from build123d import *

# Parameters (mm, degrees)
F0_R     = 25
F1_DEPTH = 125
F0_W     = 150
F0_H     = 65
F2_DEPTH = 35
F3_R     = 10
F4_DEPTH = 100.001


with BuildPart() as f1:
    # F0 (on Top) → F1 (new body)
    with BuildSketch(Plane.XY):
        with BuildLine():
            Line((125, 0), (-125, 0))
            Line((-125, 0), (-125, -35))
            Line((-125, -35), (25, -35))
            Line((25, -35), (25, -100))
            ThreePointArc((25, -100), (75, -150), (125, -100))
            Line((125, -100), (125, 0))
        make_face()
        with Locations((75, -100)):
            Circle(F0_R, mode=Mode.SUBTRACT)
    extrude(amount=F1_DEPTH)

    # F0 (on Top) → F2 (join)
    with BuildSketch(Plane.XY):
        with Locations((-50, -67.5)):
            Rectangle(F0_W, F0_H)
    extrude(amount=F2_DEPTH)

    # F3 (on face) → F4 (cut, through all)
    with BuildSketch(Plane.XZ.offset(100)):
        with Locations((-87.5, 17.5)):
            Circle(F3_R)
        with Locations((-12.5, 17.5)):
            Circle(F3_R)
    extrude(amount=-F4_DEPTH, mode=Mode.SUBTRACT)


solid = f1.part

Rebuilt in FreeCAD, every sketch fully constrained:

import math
import FreeCAD as App
import Part
import Sketcher
from FreeCAD import Vector


def add_polygon(sketch, points):
    """Adds a closed chain of lines whose ends are joined by coincident constraints."""
    first, n = sketch.GeometryCount, len(points)
    for a, b in zip(points, points[1:] + points[:1]):
        sketch.addGeometry(Part.LineSegment(App.Vector(*a, 0), App.Vector(*b, 0)), False)
    for i in range(n):
        sketch.addConstraint(Sketcher.Constraint("Coincident", first + i, 2, first + (i + 1) % n, 1))

doc = App.newDocument("Part")
body = doc.addObject("PartDesign::Body", "Body")

sketch1 = body.newObject("Sketcher::SketchObject", "Sketch")
sketch1.AttachmentSupport = (doc.getObject("XY_Plane"), [""])
sketch1.MapMode = "FlatFace"
sketch1.addGeometry(Part.LineSegment(Vector(125, 0, 0), Vector(-125, 0, 0)), False)
sketch1.addGeometry(Part.LineSegment(Vector(-125, 0, 0), Vector(-125, -35, 0)), False)
sketch1.addGeometry(Part.LineSegment(Vector(-125, -35, 0), Vector(25, -35, 0)), False)
sketch1.addGeometry(Part.LineSegment(Vector(25, -35, 0), Vector(25, -100, 0)), False)
sketch1.addGeometry(Part.ArcOfCircle(Part.Circle(Vector(75, -100, 0), Vector(0, 0, 1), 50), math.radians(180), math.radians(360)), False)
sketch1.addGeometry(Part.LineSegment(Vector(125, -100, 0), Vector(125, 0, 0)), False)
sketch1.addGeometry(Part.Circle(Vector(75, -100, 0), Vector(0, 0, 1), 25), False)
sketch1.addConstraint(Sketcher.Constraint("Coincident", 0, 2, 1, 1))
sketch1.addConstraint(Sketcher.Constraint("Coincident", 1, 2, 2, 1))
sketch1.addConstraint(Sketcher.Constraint("Coincident", 2, 2, 3, 1))
sketch1.addConstraint(Sketcher.Constraint("Tangent", 3, 2, 4, 1))
sketch1.addConstraint(Sketcher.Constraint("Tangent", 4, 2, 5, 1))
sketch1.addConstraint(Sketcher.Constraint("Coincident", 5, 2, 0, 1))
sketch1.addConstraint(Sketcher.Constraint("Horizontal", 0))
sketch1.addConstraint(Sketcher.Constraint("Vertical", 1))
sketch1.addConstraint(Sketcher.Constraint("Horizontal", 2))
sketch1.addConstraint(Sketcher.Constraint("Vertical", 3))
sketch1.addConstraint(Sketcher.Constraint("Vertical", 5))
sketch1.addConstraint(Sketcher.Constraint("Coincident", 6, 3, 4, 3))
sketch1.addConstraint(Sketcher.Constraint("Symmetric", 0, 2, 5, 2, -1, 1))
sketch1.addConstraint(Sketcher.Constraint("Diameter", 6, 50.0))
sketch1.addConstraint(Sketcher.Constraint("Radius", 4, 50.0))
sketch1.addConstraint(Sketcher.Constraint("DistanceX", 0, 2, 0, 1, 250.0))
sketch1.addConstraint(Sketcher.Constraint("DistanceY", 1, 2, 1, 1, 35.0))
sketch1.addConstraint(Sketcher.Constraint("DistanceY", 3, 2, 3, 1, 65.0))
pad1 = body.newObject("PartDesign::Pad", "Pad")
pad1.Profile = sketch1
pad1.Length = 125

sketch2 = body.newObject("Sketcher::SketchObject", "Sketch001")
sketch2.AttachmentSupport = (doc.getObject("XY_Plane"), [""])
sketch2.MapMode = "FlatFace"
add_polygon(sketch2, [(-125, -35), (-125, -100), (25, -100), (25, -35)])
sketch2.addConstraint(Sketcher.Constraint("Vertical", 0))
sketch2.addConstraint(Sketcher.Constraint("Horizontal", 1))
sketch2.addConstraint(Sketcher.Constraint("Vertical", 2))
sketch2.addConstraint(Sketcher.Constraint("Horizontal", 3))
sketch2.addConstraint(Sketcher.Constraint("DistanceX", 1, 1, 1, 2, 150.0))
sketch2.addConstraint(Sketcher.Constraint("DistanceY", 0, 2, 0, 1, 65.0))
sketch2.addConstraint(Sketcher.Constraint("DistanceX", 0, 2, -1, 1, 125.0))
sketch2.addConstraint(Sketcher.Constraint("DistanceY", 0, 2, -1, 1, 100.0))
pad2 = body.newObject("PartDesign::Pad", "Pad001")
pad2.Profile = sketch2
pad2.Length = 35

sketch3 = body.newObject("Sketcher::SketchObject", "Sketch002")
sketch3.AttachmentSupport = (doc.getObject("XZ_Plane"), [""])
sketch3.MapMode = "FlatFace"
sketch3.AttachmentOffset = App.Placement(Vector(0, 0, 100), App.Rotation())
sketch3.addGeometry(Part.Circle(Vector(-87.5, 17.5, 0), Vector(0, 0, 1), 10), False)
sketch3.addGeometry(Part.Circle(Vector(-12.5, 17.5, 0), Vector(0, 0, 1), 10), False)
sketch3.addConstraint(Sketcher.Constraint("Equal", 0, 1))
sketch3.addConstraint(Sketcher.Constraint("Horizontal", 0, 3, 1, 3))
sketch3.addConstraint(Sketcher.Constraint("Diameter", 0, 20.0))
sketch3.addConstraint(Sketcher.Constraint("DistanceX", 0, 3, 1, 3, 75.0))
sketch3.addConstraint(Sketcher.Constraint("DistanceX", 0, 3, -1, 1, 87.5))
sketch3.addConstraint(Sketcher.Constraint("DistanceY", -1, 1, 0, 3, 17.5))
pocket1 = body.newObject("PartDesign::Pocket", "Pocket")
pocket1.Profile = sketch3
pocket1.Type = "ThroughAll"

doc.recompute()
